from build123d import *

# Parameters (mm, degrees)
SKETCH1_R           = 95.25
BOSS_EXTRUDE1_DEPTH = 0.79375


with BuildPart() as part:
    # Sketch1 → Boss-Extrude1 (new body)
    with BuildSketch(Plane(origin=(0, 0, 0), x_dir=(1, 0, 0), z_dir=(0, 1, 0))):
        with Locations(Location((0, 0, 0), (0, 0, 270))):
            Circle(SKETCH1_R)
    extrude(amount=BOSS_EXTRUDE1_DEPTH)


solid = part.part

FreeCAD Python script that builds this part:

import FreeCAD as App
import Part
import Sketcher
from FreeCAD import Vector
Q = App.Units.Quantity

doc = App.newDocument("Part")
body = doc.addObject("PartDesign::Body", "Body")

sketch1 = doc.addObject("Sketcher::SketchObject", "Sketch")
body.addObject(sketch1)
sketch1.AttachmentSupport = (doc.XZ_Plane, [""])
sketch1.MapMode = "FlatFace"
sketch1.addGeometry(Part.Circle(Vector(0, 0, 0), Vector(0, 0, 1), 95), False)
sketch1.addConstraint(Sketcher.Constraint("Coincident", 0, 3, -1, 1))
sketch1.addConstraint(Sketcher.Constraint("Diameter", 0, Q("7.5 in")))
pad1 = doc.addObject("PartDesign::Pad", "Pad")
body.addObject(pad1)
pad1.Profile = sketch1
pad1.Length = Q("0.03125 in")
pad1.Reversed = True

doc.recompute()
